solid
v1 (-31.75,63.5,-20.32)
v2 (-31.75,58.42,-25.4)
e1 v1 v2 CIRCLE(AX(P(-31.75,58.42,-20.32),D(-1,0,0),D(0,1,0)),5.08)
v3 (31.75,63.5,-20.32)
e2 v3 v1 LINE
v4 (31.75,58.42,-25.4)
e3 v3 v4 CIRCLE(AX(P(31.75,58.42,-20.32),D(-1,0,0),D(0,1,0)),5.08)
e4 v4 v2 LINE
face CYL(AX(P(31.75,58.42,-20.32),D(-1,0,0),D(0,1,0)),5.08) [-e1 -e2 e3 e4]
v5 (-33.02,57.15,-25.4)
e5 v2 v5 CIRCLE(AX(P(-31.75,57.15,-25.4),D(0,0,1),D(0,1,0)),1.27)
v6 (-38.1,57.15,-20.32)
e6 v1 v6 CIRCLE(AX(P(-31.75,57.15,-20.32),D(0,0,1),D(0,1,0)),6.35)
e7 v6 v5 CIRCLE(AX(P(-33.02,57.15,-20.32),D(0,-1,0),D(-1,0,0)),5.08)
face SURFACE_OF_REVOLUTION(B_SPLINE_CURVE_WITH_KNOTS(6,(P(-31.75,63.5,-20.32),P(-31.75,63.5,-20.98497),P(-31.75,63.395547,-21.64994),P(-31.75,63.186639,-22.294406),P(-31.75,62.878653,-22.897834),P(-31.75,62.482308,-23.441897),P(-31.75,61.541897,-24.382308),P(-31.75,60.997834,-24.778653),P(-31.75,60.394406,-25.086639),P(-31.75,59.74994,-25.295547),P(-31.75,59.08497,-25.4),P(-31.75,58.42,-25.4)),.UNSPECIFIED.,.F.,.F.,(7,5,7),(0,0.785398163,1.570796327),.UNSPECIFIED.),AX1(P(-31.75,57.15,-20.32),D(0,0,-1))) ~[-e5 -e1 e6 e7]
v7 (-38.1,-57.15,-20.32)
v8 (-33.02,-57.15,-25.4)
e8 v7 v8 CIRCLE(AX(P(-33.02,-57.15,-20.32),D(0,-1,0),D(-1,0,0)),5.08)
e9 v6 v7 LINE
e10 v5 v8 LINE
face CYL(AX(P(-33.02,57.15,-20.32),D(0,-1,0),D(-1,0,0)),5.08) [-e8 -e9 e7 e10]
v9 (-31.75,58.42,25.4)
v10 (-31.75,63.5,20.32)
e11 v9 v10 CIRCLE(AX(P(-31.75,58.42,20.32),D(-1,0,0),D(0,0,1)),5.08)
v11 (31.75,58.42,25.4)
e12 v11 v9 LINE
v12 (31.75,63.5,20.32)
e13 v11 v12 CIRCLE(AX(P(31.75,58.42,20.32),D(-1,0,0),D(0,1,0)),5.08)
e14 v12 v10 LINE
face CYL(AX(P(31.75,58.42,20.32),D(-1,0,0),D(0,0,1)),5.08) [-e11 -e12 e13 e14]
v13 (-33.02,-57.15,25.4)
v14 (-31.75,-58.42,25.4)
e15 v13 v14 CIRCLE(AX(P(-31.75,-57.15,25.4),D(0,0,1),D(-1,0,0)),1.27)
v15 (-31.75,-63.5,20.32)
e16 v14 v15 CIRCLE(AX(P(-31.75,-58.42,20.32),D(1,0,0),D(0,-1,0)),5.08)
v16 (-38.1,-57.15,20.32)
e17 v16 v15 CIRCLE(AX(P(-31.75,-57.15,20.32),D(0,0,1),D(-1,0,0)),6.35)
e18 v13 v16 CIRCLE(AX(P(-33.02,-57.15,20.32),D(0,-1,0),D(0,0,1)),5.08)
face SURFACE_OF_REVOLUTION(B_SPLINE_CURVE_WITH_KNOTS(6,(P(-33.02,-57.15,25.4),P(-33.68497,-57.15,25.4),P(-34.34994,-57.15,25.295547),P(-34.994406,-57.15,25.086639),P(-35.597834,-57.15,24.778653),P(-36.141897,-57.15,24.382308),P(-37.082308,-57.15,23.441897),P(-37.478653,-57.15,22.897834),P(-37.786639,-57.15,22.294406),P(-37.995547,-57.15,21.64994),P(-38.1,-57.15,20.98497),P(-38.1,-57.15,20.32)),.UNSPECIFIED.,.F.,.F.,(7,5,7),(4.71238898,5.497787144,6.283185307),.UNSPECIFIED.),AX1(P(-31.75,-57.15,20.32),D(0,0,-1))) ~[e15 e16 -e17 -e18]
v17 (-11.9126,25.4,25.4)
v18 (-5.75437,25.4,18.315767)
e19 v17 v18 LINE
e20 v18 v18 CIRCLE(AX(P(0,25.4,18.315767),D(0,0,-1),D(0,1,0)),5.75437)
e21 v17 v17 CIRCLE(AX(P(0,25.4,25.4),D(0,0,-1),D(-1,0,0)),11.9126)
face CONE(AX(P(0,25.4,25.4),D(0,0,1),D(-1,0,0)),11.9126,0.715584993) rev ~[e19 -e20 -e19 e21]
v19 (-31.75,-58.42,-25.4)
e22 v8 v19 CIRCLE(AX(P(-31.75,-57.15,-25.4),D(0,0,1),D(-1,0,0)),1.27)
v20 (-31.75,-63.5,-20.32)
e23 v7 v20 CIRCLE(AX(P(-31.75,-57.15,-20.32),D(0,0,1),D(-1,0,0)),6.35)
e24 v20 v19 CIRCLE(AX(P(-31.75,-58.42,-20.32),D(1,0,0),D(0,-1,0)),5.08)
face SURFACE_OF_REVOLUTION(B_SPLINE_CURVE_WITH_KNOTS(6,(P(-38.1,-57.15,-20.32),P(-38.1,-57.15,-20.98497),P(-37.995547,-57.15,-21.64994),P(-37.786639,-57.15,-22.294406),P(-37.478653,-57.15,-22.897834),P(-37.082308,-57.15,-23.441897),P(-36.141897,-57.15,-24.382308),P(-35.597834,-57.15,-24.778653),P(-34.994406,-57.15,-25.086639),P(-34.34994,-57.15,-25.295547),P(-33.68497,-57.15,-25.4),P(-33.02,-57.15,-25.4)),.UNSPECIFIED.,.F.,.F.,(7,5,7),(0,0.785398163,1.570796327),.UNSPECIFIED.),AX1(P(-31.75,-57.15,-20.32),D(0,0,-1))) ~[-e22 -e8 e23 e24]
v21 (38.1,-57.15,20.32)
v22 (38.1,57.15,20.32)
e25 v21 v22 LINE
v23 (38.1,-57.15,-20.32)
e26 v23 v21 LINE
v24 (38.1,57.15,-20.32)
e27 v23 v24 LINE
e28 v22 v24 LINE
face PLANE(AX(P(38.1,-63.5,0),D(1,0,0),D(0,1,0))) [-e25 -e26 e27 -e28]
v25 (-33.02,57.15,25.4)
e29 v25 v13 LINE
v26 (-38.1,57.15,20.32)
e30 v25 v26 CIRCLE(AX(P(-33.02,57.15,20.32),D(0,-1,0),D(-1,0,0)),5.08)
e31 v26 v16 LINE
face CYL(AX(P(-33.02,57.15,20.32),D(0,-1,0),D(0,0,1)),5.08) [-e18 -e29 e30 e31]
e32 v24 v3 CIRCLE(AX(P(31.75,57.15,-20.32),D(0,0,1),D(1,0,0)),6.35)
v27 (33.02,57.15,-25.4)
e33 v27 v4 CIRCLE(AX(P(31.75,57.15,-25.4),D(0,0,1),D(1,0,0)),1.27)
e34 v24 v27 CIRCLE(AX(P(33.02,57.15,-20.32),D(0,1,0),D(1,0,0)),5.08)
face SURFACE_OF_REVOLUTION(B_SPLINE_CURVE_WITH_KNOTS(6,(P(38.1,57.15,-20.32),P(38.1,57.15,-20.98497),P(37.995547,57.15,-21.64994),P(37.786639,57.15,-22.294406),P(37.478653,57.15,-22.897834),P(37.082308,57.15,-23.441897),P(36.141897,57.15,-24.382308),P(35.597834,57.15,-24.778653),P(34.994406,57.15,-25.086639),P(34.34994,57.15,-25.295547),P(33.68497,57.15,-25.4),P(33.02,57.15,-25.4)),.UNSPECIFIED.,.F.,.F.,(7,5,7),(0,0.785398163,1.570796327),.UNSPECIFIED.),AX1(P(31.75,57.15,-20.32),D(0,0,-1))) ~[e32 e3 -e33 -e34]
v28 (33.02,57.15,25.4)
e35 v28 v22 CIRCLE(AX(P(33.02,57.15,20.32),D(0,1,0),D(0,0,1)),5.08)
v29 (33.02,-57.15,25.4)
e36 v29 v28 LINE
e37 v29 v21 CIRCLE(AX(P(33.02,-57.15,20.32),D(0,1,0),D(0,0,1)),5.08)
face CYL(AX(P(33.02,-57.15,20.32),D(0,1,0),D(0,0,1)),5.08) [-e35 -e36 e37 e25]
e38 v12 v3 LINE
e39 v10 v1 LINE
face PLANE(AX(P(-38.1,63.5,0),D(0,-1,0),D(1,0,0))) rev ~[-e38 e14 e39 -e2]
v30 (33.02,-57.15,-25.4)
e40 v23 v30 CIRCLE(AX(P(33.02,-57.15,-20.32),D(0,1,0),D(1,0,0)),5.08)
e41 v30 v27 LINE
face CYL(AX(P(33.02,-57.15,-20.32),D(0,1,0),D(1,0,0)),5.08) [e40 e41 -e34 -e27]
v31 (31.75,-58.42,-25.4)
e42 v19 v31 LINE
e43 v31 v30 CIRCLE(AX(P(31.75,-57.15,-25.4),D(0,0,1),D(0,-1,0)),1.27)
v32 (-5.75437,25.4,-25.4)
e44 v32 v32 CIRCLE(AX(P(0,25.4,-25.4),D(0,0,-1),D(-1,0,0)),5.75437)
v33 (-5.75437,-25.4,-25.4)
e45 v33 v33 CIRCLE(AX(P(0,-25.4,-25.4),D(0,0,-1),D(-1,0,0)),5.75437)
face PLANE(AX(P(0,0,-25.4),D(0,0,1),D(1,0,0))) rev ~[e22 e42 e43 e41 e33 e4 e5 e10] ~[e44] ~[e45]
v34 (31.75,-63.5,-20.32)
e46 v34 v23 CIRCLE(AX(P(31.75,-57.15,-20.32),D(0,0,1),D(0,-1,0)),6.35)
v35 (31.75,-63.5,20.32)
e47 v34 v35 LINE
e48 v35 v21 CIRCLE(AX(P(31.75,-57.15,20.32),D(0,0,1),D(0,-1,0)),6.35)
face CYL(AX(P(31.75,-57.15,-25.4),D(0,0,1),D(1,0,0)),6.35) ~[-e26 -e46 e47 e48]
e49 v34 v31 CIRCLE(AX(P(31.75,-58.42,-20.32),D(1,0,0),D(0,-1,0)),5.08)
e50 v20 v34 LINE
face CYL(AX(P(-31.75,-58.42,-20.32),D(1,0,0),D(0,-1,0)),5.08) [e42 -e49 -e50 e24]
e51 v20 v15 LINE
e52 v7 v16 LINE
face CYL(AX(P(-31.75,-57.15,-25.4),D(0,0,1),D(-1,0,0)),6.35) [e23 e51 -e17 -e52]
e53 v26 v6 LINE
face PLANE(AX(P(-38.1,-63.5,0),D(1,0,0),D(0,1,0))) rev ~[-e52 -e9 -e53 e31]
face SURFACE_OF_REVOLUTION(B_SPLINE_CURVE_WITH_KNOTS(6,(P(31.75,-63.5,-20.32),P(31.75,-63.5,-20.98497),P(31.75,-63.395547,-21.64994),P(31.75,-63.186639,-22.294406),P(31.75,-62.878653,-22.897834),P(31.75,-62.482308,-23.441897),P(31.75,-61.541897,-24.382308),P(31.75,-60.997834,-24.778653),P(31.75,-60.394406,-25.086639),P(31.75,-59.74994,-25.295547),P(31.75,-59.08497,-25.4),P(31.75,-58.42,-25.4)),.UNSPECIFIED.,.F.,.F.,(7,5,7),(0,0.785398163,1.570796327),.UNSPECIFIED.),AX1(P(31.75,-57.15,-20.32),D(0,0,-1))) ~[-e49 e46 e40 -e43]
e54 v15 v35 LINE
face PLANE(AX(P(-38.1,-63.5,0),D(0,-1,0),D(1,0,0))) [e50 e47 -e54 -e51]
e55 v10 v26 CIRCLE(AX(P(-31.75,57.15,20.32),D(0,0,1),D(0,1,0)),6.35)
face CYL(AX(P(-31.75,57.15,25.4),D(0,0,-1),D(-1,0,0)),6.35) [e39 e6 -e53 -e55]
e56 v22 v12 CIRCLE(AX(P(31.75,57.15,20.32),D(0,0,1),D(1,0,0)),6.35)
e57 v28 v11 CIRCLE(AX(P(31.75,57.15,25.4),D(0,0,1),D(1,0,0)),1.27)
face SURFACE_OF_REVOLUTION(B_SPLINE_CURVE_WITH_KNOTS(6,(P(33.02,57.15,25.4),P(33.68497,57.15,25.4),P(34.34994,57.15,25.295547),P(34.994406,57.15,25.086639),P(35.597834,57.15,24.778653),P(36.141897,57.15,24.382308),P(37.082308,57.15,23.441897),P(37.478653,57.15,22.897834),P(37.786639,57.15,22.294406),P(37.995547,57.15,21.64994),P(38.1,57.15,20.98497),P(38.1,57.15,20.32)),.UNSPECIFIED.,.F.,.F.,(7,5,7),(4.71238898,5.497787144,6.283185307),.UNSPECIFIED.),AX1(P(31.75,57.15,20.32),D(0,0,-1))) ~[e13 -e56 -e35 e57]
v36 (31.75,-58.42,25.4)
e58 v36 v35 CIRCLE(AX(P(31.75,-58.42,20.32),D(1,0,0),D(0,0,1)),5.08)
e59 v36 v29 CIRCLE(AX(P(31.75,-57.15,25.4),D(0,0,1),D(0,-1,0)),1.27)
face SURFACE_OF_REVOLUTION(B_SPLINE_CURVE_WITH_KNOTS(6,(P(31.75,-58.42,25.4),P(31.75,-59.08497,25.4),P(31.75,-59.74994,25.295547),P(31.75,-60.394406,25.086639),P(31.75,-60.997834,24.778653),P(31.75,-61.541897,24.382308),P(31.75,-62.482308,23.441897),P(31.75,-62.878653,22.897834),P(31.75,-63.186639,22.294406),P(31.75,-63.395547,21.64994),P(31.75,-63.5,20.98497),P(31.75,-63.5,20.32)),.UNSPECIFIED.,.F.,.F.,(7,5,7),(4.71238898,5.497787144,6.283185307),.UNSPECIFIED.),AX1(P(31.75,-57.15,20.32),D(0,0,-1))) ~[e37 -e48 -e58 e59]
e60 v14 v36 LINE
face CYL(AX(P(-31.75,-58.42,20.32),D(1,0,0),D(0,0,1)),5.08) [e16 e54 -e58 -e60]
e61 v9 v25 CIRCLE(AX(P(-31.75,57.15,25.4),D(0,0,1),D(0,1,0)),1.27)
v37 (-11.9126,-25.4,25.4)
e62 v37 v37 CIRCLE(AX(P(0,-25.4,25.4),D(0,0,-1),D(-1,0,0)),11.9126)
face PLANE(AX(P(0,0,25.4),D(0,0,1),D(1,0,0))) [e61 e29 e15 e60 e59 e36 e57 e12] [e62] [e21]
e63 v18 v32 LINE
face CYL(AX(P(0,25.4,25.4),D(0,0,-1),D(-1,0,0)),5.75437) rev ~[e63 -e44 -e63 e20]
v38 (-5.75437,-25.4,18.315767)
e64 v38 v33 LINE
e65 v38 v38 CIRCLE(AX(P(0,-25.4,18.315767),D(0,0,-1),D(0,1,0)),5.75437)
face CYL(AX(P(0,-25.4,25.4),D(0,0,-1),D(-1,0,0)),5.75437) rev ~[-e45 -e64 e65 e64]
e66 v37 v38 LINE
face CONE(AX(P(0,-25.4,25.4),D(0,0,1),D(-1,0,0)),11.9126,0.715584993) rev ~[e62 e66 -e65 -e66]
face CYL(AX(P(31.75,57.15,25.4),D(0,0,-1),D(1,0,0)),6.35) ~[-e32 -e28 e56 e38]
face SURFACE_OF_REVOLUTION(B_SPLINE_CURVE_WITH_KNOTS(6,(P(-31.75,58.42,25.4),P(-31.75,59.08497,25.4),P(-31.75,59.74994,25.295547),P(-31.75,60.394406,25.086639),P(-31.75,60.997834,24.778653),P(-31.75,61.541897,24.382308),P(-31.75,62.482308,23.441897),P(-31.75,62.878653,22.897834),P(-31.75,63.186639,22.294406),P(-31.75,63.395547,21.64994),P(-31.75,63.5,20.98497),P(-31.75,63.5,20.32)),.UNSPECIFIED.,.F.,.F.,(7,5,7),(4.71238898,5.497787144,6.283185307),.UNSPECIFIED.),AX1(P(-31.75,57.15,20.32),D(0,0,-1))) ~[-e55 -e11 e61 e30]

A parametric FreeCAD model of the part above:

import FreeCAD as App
import Part
import Sketcher

V = App.Vector
Q = App.Units.Quantity


def edges_at(feature, points):
    """Names of the edges that pass closest to the given points."""
    edges = feature.Shape.Edges
    near = lambda p: min(range(len(edges)), key=lambda i: edges[i].distToShape(Part.Vertex(*p))[0])
    return sorted({f"Edge{near(p) + 1}" for p in points})


def add_polygon(sketch, points):
    """Adds a closed chain of lines whose ends are joined by coincident constraints."""
    first, n = sketch.GeometryCount, len(points)
    for a, b in zip(points, points[1:] + points[:1]):
        sketch.addGeometry(Part.LineSegment(App.Vector(*a, 0), App.Vector(*b, 0)), False)
    for i in range(n):
        sketch.addConstraint(Sketcher.Constraint("Coincident", first + i, 2, first + (i + 1) % n, 1))

doc = App.newDocument("Part")
body = doc.addObject("PartDesign::Body", "Body")

# Sketch on XY plane
sketch1 = body.newObject("Sketcher::SketchObject", "Sketch")
sketch1.AttachmentSupport = (doc.getObject("XY_Plane"), [""])
sketch1.MapMode = "FlatFace"
add_polygon(sketch1, [(-38, 64), (-38, -64), (38, -64), (38, 64)])  # lines 0-3
sketch1.addConstraint([
    Sketcher.Constraint("Vertical", 0),
    Sketcher.Constraint("Horizontal", 1),
    Sketcher.Constraint("Vertical", 2),
    Sketcher.Constraint("Horizontal", 3),
    Sketcher.Constraint("Symmetric", 0, 2, 2, 2, -1, 1),
    Sketcher.Constraint("DistanceX", 1, 1, 1, 2, Q("3 in")),
    Sketcher.Constraint("DistanceY", 0, 2, 0, 1, Q("5 in")),
])
pad1 = body.newObject("PartDesign::Pad", "Pad")
pad1.Profile = sketch1
pad1.Length = Q("2 in")
pad1.Midplane = True
doc.recompute()

fillet = body.newObject("PartDesign::Fillet", "Fillet")
fillet.Base = (pad1, edges_at(pad1, [
    (38.1, -63.5, 0),
    (38.1, 63.5, 0),
    (-38.1, -63.5, 0),
    (-38.1, 63.5, 0),
]))
fillet.Radius = Q("0.25 in")

# Sketch on XY plane
sketch2 = body.newObject("Sketcher::SketchObject", "Sketch001")
sketch2.AttachmentSupport = (doc.getObject("XY_Plane"), [""])
sketch2.MapMode = "FlatFace"
sketch2.AttachmentOffset = App.Placement(V(0, 0, 1 * 25.4), App.Rotation())
sketch2.addGeometry([
    Part.Circle(V(0, -25, 0), V(0, 0, 1), 6),
    Part.Circle(V(0, 25, 0), V(0, 0, 1), 6),
], False)
sketch2.addConstraint([
    Sketcher.Constraint("Equal", 0, 1),
    Sketcher.Constraint("Symmetric", 0, 3, 1, 3, -1, 1),
    Sketcher.Constraint("PointOnObject", 0, 3, -2),
    Sketcher.Constraint("DistanceY", 0, 3, -1, 1, Q("1 in")),
    Sketcher.Constraint("Diameter", 0, Q("0.4531 in")),
])
doc.recompute()
hole = body.newObject("PartDesign::Hole", "Hole")
hole.Profile = sketch2
hole.ThreadType = "None"
hole.Diameter = Q("0.4531 in")
hole.DepthType = "ThroughAll"
hole.HoleCutType = "Countersink"
hole.HoleCutDiameter = Q("0.938 in")
hole.HoleCutCountersinkAngle = 82
doc.recompute()

fillet2 = body.newObject("PartDesign::Fillet", "Fillet001")
fillet2.Base = (hole, edges_at(hole, [(38.1, 0, 25.4), (38.1, 0, -25.4)]))
fillet2.Radius = Q("0.2 in")

doc.recompute()
